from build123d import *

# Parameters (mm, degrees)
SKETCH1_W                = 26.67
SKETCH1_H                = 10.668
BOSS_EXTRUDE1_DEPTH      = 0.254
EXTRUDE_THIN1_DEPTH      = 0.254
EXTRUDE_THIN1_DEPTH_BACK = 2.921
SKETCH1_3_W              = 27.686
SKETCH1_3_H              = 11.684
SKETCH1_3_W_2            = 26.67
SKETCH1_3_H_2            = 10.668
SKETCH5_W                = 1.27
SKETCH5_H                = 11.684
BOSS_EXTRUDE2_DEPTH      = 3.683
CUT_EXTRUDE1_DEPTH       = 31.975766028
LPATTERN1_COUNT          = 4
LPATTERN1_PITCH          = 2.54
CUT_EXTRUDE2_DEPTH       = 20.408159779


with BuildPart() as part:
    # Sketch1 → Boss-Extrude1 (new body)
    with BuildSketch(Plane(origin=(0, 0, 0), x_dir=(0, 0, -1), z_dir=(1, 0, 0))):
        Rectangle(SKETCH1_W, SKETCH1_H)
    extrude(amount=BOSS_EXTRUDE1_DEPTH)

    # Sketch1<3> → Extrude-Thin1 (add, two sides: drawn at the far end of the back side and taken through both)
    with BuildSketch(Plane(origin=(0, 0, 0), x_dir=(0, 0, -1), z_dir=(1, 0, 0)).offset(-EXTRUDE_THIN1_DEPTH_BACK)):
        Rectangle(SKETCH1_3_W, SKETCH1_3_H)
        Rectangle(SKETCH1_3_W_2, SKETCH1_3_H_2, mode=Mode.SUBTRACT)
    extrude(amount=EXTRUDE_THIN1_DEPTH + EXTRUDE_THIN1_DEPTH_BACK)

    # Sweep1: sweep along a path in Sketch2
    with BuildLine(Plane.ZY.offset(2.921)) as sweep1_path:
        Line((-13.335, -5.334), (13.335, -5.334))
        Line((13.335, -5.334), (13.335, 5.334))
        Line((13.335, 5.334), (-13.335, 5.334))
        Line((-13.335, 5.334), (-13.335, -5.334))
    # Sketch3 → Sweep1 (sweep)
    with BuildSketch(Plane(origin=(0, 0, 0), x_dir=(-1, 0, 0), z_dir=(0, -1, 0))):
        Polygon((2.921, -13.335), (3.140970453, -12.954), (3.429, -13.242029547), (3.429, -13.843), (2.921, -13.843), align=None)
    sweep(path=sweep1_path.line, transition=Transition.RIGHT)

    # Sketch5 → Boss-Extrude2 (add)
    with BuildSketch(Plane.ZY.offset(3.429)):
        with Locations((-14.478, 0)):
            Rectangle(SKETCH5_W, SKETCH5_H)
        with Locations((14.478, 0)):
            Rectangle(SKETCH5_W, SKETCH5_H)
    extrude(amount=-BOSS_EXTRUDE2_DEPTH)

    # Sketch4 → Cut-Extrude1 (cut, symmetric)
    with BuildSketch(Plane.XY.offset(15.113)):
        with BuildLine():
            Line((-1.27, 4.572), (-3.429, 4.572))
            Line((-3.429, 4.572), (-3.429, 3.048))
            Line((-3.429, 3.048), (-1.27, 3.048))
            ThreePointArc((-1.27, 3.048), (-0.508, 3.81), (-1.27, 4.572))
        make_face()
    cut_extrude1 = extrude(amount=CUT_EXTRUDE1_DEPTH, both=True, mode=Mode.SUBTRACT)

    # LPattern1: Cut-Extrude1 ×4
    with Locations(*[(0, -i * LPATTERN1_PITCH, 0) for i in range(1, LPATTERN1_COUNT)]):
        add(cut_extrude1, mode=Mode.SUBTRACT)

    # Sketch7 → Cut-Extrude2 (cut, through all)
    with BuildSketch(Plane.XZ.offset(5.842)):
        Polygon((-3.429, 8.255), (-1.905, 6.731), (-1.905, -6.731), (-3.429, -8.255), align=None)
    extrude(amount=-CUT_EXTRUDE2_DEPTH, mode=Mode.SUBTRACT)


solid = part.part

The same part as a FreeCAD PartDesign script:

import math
import FreeCAD as App
import Part
import Sketcher
Q = App.Units.Quantity

doc = App.newDocument("Part")
body = doc.addObject("PartDesign::Body", "Body")

sketch1 = doc.addObject("Sketcher::SketchObject", "Sketch")
body.addObject(sketch1)
sketch1.AttachmentSupport = (doc.YZ_Plane, [""])
sketch1.MapMode = "FlatFace"
sketch1.addGeometry([
    Part.LineSegment(App.Vector(5, 13, 0), App.Vector(-5, 13, 0)),
    Part.LineSegment(App.Vector(-5, 13, 0), App.Vector(-5, -13, 0)),
    Part.LineSegment(App.Vector(-5, -13, 0), App.Vector(5, -13, 0)),
    Part.LineSegment(App.Vector(5, -13, 0), App.Vector(5, 13, 0)),
], False)
sketch1.addConstraint([
    Sketcher.Constraint("Coincident", 0, 2, 1, 1),
    Sketcher.Constraint("Coincident", 1, 2, 2, 1),
    Sketcher.Constraint("Coincident", 2, 2, 3, 1),
    Sketcher.Constraint("Coincident", 3, 2, 0, 1),
    Sketcher.Constraint("Horizontal", 0),
    Sketcher.Constraint("Vertical", 1),
    Sketcher.Constraint("Horizontal", 2),
    Sketcher.Constraint("Vertical", 3),
    Sketcher.Constraint("Symmetric", 0, 2, 2, 2, -1, 1),
    Sketcher.Constraint("DistanceX", 0, 2, 0, 1, Q("0.42 in")),
    Sketcher.Constraint("DistanceY", 1, 2, 1, 1, Q("1.05 in")),
])
pad1 = doc.addObject("PartDesign::Pad", "Pad")
body.addObject(pad1)
pad1.Profile = sketch1
pad1.Length = Q("0.01 in")

sketch2 = doc.addObject("Sketcher::SketchObject", "Sketch001")
body.addObject(sketch2)
sketch2.AttachmentSupport = (doc.YZ_Plane, [""])
sketch2.MapMode = "FlatFace"
sketch2.addGeometry([
    Part.LineSegment(App.Vector(6, 14, 0), App.Vector(-6, 14, 0)),
    Part.LineSegment(App.Vector(-6, 14, 0), App.Vector(-6, -14, 0)),
    Part.LineSegment(App.Vector(-6, -14, 0), App.Vector(6, -14, 0)),
    Part.LineSegment(App.Vector(6, -14, 0), App.Vector(6, 14, 0)),
    Part.LineSegment(App.Vector(-5, -13, 0), App.Vector(-5, 13, 0)),
    Part.LineSegment(App.Vector(-5, 13, 0), App.Vector(5, 13, 0)),
    Part.LineSegment(App.Vector(5, 13, 0), App.Vector(5, -13, 0)),
    Part.LineSegment(App.Vector(5, -13, 0), App.Vector(-5, -13, 0)),
], False)
sketch2.addConstraint([
    Sketcher.Constraint("Coincident", 0, 2, 1, 1),
    Sketcher.Constraint("Coincident", 1, 2, 2, 1),
    Sketcher.Constraint("Coincident", 2, 2, 3, 1),
    Sketcher.Constraint("Coincident", 3, 2, 0, 1),
    Sketcher.Constraint("Coincident", 4, 2, 5, 1),
    Sketcher.Constraint("Coincident", 5, 2, 6, 1),
    Sketcher.Constraint("Coincident", 6, 2, 7, 1),
    Sketcher.Constraint("Coincident", 7, 2, 4, 1),
    Sketcher.Constraint("Horizontal", 0),
    Sketcher.Constraint("Vertical", 1),
    Sketcher.Constraint("Horizontal", 2),
    Sketcher.Constraint("Vertical", 3),
    Sketcher.Constraint("Vertical", 4),
    Sketcher.Constraint("Horizontal", 5),
    Sketcher.Constraint("Vertical", 6),
    Sketcher.Constraint("Horizontal", 7),
    Sketcher.Constraint("Symmetric", 0, 2, 2, 2, -1, 1),
    Sketcher.Constraint("Symmetric", 4, 2, 6, 2, -1, 1),
    Sketcher.Constraint("DistanceX", 0, 2, 0, 1, Q("0.46 in")),
    Sketcher.Constraint("DistanceX", 5, 1, 5, 2, Q("0.42 in")),
    Sketcher.Constraint("DistanceY", 1, 2, 1, 1, Q("1.09 in")),
    Sketcher.Constraint("DistanceY", 4, 1, 4, 2, Q("1.05 in")),
])
pad2 = doc.addObject("PartDesign::Pad", "Pad001")
body.addObject(pad2)
pad2.Profile = sketch2
pad2.Type = "TwoLengths"
pad2.Length = Q("0.01 in")
pad2.Length2 = Q("0.115 in")

sketch3 = doc.addObject("Sketcher::SketchObject", "Sketch002")
body.addObject(sketch3)
sketch3.AttachmentSupport = (doc.XZ_Plane, [""])
sketch3.MapMode = "FlatFace"
sketch3.addGeometry([
    Part.LineSegment(App.Vector(-3.14, 12.95, 0), App.Vector(-2.92, 13.34, 0)),
    Part.LineSegment(App.Vector(-2.92, 13.34, 0), App.Vector(-2.92, 13.84, 0)),
    Part.LineSegment(App.Vector(-2.92, 13.84, 0), App.Vector(-3.43, 13.84, 0)),
    Part.LineSegment(App.Vector(-3.43, 13.84, 0), App.Vector(-3.43, 13.24, 0)),
    Part.LineSegment(App.Vector(-3.43, 13.24, 0), App.Vector(-3.14, 12.95, 0)),
], False)
sketch3.addConstraint([
    Sketcher.Constraint("Coincident", 0, 2, 1, 1),
    Sketcher.Constraint("Coincident", 1, 2, 2, 1),
    Sketcher.Constraint("Coincident", 2, 2, 3, 1),
    Sketcher.Constraint("Coincident", 3, 2, 4, 1),
    Sketcher.Constraint("Coincident", 4, 2, 0, 1),
    Sketcher.Constraint("Vertical", 1),
    Sketcher.Constraint("Horizontal", 2),
    Sketcher.Constraint("Vertical", 3),
    Sketcher.Constraint("Equal", 2, 1),
    Sketcher.Constraint("Angle", 0, Q("60 deg")),
    Sketcher.Constraint("Angle", 4, Q("-45 deg")),
    Sketcher.Constraint("DistanceX", 2, 2, 2, 1, Q("0.02 in")),
    Sketcher.Constraint("DistanceY", -1, 1, 4, 2, Q("0.51 in")),
    Sketcher.Constraint("DistanceX", 0, 2, -1, 1, Q("0.115 in")),
    Sketcher.Constraint("DistanceY", -1, 1, 0, 2, Q("0.525 in")),
])

sketch4 = doc.addObject("Sketcher::SketchObject", "Sketch003")
body.addObject(sketch4)
sketch4.AttachmentSupport = (doc.YZ_Plane, [""])
sketch4.MapMode = "FlatFace"
sketch4.AttachmentOffset = App.Placement(App.Vector(0, 0, -0.115 * 25.4), App.Rotation())
sketch4.addGeometry([
    Part.LineSegment(App.Vector(-5, -13, 0), App.Vector(-5, 13, 0)),
    Part.LineSegment(App.Vector(-5, 13, 0), App.Vector(5, 13, 0)),
    Part.LineSegment(App.Vector(5, 13, 0), App.Vector(5, -13, 0)),
    Part.LineSegment(App.Vector(5, -13, 0), App.Vector(-5, -13, 0)),
], False)
sketch4.addConstraint([
    Sketcher.Constraint("Coincident", 0, 2, 1, 1),
    Sketcher.Constraint("Coincident", 1, 2, 2, 1),
    Sketcher.Constraint("Coincident", 2, 2, 3, 1),
    Sketcher.Constraint("Coincident", 3, 2, 0, 1),
    Sketcher.Constraint("Vertical", 0),
    Sketcher.Constraint("Horizontal", 1),
    Sketcher.Constraint("Vertical", 2),
    Sketcher.Constraint("Horizontal", 3),
    Sketcher.Constraint("Symmetric", 0, 2, 2, 2, -1, 1),
    Sketcher.Constraint("DistanceX", 1, 1, 1, 2, Q("0.42 in")),
    Sketcher.Constraint("DistanceY", 0, 1, 0, 2, Q("1.05 in")),
])
doc.recompute()

additivepipe = doc.addObject("PartDesign::AdditivePipe", "AdditivePipe")
body.addObject(additivepipe)
additivepipe.Profile = sketch3
additivepipe.Spine = (sketch4, ["Edge1", "Edge2", "Edge3", "Edge4"])
additivepipe.Transition = "Right corner"

sketch5 = doc.addObject("Sketcher::SketchObject", "Sketch004")
body.addObject(sketch5)
sketch5.AttachmentSupport = (doc.YZ_Plane, [""])
sketch5.MapMode = "FlatFace"
sketch5.AttachmentOffset = App.Placement(App.Vector(0, 0, -0.135 * 25.4), App.Rotation())
sketch5.addGeometry([
    Part.LineSegment(App.Vector(5.8, -15.1, 0), App.Vector(-5.8, -15.1, 0)),
    Part.LineSegment(App.Vector(-5.8, -15.1, 0), App.Vector(-5.8, -13.8, 0)),
    Part.LineSegment(App.Vector(-5.8, -13.8, 0), App.Vector(5.8, -13.8, 0)),
    Part.LineSegment(App.Vector(5.8, -13.8, 0), App.Vector(5.8, -15.1, 0)),
    Part.LineSegment(App.Vector(5.8, 13.8, 0), App.Vector(-5.8, 13.8, 0)),
    Part.LineSegment(App.Vector(-5.8, 13.8, 0), App.Vector(-5.8, 15.1, 0)),
    Part.LineSegment(App.Vector(-5.8, 15.1, 0), App.Vector(5.8, 15.1, 0)),
    Part.LineSegment(App.Vector(5.8, 15.1, 0), App.Vector(5.8, 13.8, 0)),
], False)
sketch5.addConstraint([
    Sketcher.Constraint("Coincident", 0, 2, 1, 1),
    Sketcher.Constraint("Coincident", 1, 2, 2, 1),
    Sketcher.Constraint("Coincident", 2, 2, 3, 1),
    Sketcher.Constraint("Coincident", 3, 2, 0, 1),
    Sketcher.Constraint("Coincident", 4, 2, 5, 1),
    Sketcher.Constraint("Coincident", 5, 2, 6, 1),
    Sketcher.Constraint("Coincident", 6, 2, 7, 1),
    Sketcher.Constraint("Coincident", 7, 2, 4, 1),
    Sketcher.Constraint("Horizontal", 0),
    Sketcher.Constraint("Vertical", 1),
    Sketcher.Constraint("Horizontal", 2),
    Sketcher.Constraint("Vertical", 3),
    Sketcher.Constraint("Horizontal", 4),
    Sketcher.Constraint("Vertical", 5),
    Sketcher.Constraint("Horizontal", 6),
    Sketcher.Constraint("Vertical", 7),
    Sketcher.Constraint("Symmetric", 2, 2, 4, 2, -1, 1),
    Sketcher.Constraint("Symmetric", 0, 2, 6, 2, -1, 1),
    Sketcher.Constraint("Vertical", 1, 2, 4, 2),
    Sketcher.Constraint("DistanceX", 0, 2, 0, 1, Q("0.46 in")),
    Sketcher.Constraint("DistanceY", 1, 1, 1, 2, Q("0.05 in")),
    Sketcher.Constraint("DistanceY", 1, 2, 4, 2, Q("1.09 in")),
])
pad3 = doc.addObject("PartDesign::Pad", "Pad002")
body.addObject(pad3)
pad3.Profile = sketch5
pad3.Length = Q("0.145 in")

sketch6 = doc.addObject("Sketcher::SketchObject", "Sketch005")
body.addObject(sketch6)
sketch6.AttachmentSupport = (doc.XY_Plane, [""])
sketch6.MapMode = "FlatFace"
sketch6.AttachmentOffset = App.Placement(App.Vector(0, 0, 0.595 * 25.4), App.Rotation())
sketch6.addGeometry([
    Part.LineSegment(App.Vector(-1.3, 4.6, 0), App.Vector(-3.4, 4.6, 0)),
    Part.LineSegment(App.Vector(-3.4, 4.6, 0), App.Vector(-3.4, 3, 0)),
    Part.LineSegment(App.Vector(-3.4, 3, 0), App.Vector(-1.3, 3, 0)),
    Part.ArcOfCircle(Part.Circle(App.Vector(-1.3, 3.8, 0), App.Vector(0, 0, 1), 0.8), math.radians(-90), math.radians(90)),
], False)
sketch6.addConstraint([
    Sketcher.Constraint("Coincident", 0, 2, 1, 1),
    Sketcher.Constraint("Coincident", 1, 2, 2, 1),
    Sketcher.Constraint("Tangent", 2, 2, 3, 1),
    Sketcher.Constraint("Tangent", 3, 2, 0, 1),
    Sketcher.Constraint("Horizontal", 0),
    Sketcher.Constraint("Vertical", 1),
    Sketcher.Constraint("Horizontal", 2),
    Sketcher.Constraint("Radius", 3, Q("0.03 in")),
    Sketcher.Constraint("DistanceX", 0, 2, 0, 1, Q("0.085 in")),
    Sketcher.Constraint("DistanceX", 3, 3, -1, 1, Q("0.05 in")),
    Sketcher.Constraint("DistanceY", -1, 1, 3, 3, Q("0.15 in")),
])
pocket1 = doc.addObject("PartDesign::Pocket", "Pocket")
body.addObject(pocket1)
pocket1.Profile = sketch6
pocket1.Length = 63.951532
pocket1.Midplane = True
doc.recompute()

linearpattern = doc.addObject("PartDesign::LinearPattern", "LinearPattern")
body.addObject(linearpattern)
linearpattern.Originals = [pocket1]
linearpattern.Direction = (doc.Y_Axis, [""])
linearpattern.Mode = "offset"
linearpattern.Offset = Q("0.1 in")
linearpattern.Occurrences = 4
linearpattern.Reversed = True
body.Tip = linearpattern

sketch7 = doc.addObject("Sketcher::SketchObject", "Sketch006")
body.addObject(sketch7)
sketch7.AttachmentSupport = (doc.XZ_Plane, [""])
sketch7.MapMode = "FlatFace"
sketch7.AttachmentOffset = App.Placement(App.Vector(0, 0, 0.23 * 25.4), App.Rotation())
sketch7.addGeometry([
    Part.LineSegment(App.Vector(-1.9, 6.7, 0), App.Vector(-3.4, 8.3, 0)),
    Part.LineSegment(App.Vector(-3.4, 8.3, 0), App.Vector(-3.4, -8.3, 0)),
    Part.LineSegment(App.Vector(-3.4, -8.3, 0), App.Vector(-1.9, -6.7, 0)),
    Part.LineSegment(App.Vector(-1.9, -6.7, 0), App.Vector(-1.9, 6.7, 0)),
], False)
sketch7.addConstraint([
    Sketcher.Constraint("Coincident", 0, 2, 1, 1),
    Sketcher.Constraint("Coincident", 1, 2, 2, 1),
    Sketcher.Constraint("Coincident", 2, 2, 3, 1),
    Sketcher.Constraint("Coincident", 3, 2, 0, 1),
    Sketcher.Constraint("Vertical", 1),
    Sketcher.Constraint("Vertical", 3),
    Sketcher.Constraint("Perpendicular", 0, 2),
    Sketcher.Constraint("Equal", 0, 2),
    Sketcher.Constraint("DistanceY", 1, 2, 1, 1, Q("0.65 in")),
    Sketcher.Constraint("DistanceY", 3, 1, 3, 2, Q("0.53 in")),
    Sketcher.Constraint("DistanceX", 0, 2, -1, 1, Q("0.135 in")),
    Sketcher.Constraint("DistanceY", -1, 1, 0, 2, Q("0.325 in")),
])
pocket2 = doc.addObject("PartDesign::Pocket", "Pocket001")
body.addObject(pocket2)
pocket2.Profile = sketch7
pocket2.Type = "ThroughAll"

doc.recompute()
